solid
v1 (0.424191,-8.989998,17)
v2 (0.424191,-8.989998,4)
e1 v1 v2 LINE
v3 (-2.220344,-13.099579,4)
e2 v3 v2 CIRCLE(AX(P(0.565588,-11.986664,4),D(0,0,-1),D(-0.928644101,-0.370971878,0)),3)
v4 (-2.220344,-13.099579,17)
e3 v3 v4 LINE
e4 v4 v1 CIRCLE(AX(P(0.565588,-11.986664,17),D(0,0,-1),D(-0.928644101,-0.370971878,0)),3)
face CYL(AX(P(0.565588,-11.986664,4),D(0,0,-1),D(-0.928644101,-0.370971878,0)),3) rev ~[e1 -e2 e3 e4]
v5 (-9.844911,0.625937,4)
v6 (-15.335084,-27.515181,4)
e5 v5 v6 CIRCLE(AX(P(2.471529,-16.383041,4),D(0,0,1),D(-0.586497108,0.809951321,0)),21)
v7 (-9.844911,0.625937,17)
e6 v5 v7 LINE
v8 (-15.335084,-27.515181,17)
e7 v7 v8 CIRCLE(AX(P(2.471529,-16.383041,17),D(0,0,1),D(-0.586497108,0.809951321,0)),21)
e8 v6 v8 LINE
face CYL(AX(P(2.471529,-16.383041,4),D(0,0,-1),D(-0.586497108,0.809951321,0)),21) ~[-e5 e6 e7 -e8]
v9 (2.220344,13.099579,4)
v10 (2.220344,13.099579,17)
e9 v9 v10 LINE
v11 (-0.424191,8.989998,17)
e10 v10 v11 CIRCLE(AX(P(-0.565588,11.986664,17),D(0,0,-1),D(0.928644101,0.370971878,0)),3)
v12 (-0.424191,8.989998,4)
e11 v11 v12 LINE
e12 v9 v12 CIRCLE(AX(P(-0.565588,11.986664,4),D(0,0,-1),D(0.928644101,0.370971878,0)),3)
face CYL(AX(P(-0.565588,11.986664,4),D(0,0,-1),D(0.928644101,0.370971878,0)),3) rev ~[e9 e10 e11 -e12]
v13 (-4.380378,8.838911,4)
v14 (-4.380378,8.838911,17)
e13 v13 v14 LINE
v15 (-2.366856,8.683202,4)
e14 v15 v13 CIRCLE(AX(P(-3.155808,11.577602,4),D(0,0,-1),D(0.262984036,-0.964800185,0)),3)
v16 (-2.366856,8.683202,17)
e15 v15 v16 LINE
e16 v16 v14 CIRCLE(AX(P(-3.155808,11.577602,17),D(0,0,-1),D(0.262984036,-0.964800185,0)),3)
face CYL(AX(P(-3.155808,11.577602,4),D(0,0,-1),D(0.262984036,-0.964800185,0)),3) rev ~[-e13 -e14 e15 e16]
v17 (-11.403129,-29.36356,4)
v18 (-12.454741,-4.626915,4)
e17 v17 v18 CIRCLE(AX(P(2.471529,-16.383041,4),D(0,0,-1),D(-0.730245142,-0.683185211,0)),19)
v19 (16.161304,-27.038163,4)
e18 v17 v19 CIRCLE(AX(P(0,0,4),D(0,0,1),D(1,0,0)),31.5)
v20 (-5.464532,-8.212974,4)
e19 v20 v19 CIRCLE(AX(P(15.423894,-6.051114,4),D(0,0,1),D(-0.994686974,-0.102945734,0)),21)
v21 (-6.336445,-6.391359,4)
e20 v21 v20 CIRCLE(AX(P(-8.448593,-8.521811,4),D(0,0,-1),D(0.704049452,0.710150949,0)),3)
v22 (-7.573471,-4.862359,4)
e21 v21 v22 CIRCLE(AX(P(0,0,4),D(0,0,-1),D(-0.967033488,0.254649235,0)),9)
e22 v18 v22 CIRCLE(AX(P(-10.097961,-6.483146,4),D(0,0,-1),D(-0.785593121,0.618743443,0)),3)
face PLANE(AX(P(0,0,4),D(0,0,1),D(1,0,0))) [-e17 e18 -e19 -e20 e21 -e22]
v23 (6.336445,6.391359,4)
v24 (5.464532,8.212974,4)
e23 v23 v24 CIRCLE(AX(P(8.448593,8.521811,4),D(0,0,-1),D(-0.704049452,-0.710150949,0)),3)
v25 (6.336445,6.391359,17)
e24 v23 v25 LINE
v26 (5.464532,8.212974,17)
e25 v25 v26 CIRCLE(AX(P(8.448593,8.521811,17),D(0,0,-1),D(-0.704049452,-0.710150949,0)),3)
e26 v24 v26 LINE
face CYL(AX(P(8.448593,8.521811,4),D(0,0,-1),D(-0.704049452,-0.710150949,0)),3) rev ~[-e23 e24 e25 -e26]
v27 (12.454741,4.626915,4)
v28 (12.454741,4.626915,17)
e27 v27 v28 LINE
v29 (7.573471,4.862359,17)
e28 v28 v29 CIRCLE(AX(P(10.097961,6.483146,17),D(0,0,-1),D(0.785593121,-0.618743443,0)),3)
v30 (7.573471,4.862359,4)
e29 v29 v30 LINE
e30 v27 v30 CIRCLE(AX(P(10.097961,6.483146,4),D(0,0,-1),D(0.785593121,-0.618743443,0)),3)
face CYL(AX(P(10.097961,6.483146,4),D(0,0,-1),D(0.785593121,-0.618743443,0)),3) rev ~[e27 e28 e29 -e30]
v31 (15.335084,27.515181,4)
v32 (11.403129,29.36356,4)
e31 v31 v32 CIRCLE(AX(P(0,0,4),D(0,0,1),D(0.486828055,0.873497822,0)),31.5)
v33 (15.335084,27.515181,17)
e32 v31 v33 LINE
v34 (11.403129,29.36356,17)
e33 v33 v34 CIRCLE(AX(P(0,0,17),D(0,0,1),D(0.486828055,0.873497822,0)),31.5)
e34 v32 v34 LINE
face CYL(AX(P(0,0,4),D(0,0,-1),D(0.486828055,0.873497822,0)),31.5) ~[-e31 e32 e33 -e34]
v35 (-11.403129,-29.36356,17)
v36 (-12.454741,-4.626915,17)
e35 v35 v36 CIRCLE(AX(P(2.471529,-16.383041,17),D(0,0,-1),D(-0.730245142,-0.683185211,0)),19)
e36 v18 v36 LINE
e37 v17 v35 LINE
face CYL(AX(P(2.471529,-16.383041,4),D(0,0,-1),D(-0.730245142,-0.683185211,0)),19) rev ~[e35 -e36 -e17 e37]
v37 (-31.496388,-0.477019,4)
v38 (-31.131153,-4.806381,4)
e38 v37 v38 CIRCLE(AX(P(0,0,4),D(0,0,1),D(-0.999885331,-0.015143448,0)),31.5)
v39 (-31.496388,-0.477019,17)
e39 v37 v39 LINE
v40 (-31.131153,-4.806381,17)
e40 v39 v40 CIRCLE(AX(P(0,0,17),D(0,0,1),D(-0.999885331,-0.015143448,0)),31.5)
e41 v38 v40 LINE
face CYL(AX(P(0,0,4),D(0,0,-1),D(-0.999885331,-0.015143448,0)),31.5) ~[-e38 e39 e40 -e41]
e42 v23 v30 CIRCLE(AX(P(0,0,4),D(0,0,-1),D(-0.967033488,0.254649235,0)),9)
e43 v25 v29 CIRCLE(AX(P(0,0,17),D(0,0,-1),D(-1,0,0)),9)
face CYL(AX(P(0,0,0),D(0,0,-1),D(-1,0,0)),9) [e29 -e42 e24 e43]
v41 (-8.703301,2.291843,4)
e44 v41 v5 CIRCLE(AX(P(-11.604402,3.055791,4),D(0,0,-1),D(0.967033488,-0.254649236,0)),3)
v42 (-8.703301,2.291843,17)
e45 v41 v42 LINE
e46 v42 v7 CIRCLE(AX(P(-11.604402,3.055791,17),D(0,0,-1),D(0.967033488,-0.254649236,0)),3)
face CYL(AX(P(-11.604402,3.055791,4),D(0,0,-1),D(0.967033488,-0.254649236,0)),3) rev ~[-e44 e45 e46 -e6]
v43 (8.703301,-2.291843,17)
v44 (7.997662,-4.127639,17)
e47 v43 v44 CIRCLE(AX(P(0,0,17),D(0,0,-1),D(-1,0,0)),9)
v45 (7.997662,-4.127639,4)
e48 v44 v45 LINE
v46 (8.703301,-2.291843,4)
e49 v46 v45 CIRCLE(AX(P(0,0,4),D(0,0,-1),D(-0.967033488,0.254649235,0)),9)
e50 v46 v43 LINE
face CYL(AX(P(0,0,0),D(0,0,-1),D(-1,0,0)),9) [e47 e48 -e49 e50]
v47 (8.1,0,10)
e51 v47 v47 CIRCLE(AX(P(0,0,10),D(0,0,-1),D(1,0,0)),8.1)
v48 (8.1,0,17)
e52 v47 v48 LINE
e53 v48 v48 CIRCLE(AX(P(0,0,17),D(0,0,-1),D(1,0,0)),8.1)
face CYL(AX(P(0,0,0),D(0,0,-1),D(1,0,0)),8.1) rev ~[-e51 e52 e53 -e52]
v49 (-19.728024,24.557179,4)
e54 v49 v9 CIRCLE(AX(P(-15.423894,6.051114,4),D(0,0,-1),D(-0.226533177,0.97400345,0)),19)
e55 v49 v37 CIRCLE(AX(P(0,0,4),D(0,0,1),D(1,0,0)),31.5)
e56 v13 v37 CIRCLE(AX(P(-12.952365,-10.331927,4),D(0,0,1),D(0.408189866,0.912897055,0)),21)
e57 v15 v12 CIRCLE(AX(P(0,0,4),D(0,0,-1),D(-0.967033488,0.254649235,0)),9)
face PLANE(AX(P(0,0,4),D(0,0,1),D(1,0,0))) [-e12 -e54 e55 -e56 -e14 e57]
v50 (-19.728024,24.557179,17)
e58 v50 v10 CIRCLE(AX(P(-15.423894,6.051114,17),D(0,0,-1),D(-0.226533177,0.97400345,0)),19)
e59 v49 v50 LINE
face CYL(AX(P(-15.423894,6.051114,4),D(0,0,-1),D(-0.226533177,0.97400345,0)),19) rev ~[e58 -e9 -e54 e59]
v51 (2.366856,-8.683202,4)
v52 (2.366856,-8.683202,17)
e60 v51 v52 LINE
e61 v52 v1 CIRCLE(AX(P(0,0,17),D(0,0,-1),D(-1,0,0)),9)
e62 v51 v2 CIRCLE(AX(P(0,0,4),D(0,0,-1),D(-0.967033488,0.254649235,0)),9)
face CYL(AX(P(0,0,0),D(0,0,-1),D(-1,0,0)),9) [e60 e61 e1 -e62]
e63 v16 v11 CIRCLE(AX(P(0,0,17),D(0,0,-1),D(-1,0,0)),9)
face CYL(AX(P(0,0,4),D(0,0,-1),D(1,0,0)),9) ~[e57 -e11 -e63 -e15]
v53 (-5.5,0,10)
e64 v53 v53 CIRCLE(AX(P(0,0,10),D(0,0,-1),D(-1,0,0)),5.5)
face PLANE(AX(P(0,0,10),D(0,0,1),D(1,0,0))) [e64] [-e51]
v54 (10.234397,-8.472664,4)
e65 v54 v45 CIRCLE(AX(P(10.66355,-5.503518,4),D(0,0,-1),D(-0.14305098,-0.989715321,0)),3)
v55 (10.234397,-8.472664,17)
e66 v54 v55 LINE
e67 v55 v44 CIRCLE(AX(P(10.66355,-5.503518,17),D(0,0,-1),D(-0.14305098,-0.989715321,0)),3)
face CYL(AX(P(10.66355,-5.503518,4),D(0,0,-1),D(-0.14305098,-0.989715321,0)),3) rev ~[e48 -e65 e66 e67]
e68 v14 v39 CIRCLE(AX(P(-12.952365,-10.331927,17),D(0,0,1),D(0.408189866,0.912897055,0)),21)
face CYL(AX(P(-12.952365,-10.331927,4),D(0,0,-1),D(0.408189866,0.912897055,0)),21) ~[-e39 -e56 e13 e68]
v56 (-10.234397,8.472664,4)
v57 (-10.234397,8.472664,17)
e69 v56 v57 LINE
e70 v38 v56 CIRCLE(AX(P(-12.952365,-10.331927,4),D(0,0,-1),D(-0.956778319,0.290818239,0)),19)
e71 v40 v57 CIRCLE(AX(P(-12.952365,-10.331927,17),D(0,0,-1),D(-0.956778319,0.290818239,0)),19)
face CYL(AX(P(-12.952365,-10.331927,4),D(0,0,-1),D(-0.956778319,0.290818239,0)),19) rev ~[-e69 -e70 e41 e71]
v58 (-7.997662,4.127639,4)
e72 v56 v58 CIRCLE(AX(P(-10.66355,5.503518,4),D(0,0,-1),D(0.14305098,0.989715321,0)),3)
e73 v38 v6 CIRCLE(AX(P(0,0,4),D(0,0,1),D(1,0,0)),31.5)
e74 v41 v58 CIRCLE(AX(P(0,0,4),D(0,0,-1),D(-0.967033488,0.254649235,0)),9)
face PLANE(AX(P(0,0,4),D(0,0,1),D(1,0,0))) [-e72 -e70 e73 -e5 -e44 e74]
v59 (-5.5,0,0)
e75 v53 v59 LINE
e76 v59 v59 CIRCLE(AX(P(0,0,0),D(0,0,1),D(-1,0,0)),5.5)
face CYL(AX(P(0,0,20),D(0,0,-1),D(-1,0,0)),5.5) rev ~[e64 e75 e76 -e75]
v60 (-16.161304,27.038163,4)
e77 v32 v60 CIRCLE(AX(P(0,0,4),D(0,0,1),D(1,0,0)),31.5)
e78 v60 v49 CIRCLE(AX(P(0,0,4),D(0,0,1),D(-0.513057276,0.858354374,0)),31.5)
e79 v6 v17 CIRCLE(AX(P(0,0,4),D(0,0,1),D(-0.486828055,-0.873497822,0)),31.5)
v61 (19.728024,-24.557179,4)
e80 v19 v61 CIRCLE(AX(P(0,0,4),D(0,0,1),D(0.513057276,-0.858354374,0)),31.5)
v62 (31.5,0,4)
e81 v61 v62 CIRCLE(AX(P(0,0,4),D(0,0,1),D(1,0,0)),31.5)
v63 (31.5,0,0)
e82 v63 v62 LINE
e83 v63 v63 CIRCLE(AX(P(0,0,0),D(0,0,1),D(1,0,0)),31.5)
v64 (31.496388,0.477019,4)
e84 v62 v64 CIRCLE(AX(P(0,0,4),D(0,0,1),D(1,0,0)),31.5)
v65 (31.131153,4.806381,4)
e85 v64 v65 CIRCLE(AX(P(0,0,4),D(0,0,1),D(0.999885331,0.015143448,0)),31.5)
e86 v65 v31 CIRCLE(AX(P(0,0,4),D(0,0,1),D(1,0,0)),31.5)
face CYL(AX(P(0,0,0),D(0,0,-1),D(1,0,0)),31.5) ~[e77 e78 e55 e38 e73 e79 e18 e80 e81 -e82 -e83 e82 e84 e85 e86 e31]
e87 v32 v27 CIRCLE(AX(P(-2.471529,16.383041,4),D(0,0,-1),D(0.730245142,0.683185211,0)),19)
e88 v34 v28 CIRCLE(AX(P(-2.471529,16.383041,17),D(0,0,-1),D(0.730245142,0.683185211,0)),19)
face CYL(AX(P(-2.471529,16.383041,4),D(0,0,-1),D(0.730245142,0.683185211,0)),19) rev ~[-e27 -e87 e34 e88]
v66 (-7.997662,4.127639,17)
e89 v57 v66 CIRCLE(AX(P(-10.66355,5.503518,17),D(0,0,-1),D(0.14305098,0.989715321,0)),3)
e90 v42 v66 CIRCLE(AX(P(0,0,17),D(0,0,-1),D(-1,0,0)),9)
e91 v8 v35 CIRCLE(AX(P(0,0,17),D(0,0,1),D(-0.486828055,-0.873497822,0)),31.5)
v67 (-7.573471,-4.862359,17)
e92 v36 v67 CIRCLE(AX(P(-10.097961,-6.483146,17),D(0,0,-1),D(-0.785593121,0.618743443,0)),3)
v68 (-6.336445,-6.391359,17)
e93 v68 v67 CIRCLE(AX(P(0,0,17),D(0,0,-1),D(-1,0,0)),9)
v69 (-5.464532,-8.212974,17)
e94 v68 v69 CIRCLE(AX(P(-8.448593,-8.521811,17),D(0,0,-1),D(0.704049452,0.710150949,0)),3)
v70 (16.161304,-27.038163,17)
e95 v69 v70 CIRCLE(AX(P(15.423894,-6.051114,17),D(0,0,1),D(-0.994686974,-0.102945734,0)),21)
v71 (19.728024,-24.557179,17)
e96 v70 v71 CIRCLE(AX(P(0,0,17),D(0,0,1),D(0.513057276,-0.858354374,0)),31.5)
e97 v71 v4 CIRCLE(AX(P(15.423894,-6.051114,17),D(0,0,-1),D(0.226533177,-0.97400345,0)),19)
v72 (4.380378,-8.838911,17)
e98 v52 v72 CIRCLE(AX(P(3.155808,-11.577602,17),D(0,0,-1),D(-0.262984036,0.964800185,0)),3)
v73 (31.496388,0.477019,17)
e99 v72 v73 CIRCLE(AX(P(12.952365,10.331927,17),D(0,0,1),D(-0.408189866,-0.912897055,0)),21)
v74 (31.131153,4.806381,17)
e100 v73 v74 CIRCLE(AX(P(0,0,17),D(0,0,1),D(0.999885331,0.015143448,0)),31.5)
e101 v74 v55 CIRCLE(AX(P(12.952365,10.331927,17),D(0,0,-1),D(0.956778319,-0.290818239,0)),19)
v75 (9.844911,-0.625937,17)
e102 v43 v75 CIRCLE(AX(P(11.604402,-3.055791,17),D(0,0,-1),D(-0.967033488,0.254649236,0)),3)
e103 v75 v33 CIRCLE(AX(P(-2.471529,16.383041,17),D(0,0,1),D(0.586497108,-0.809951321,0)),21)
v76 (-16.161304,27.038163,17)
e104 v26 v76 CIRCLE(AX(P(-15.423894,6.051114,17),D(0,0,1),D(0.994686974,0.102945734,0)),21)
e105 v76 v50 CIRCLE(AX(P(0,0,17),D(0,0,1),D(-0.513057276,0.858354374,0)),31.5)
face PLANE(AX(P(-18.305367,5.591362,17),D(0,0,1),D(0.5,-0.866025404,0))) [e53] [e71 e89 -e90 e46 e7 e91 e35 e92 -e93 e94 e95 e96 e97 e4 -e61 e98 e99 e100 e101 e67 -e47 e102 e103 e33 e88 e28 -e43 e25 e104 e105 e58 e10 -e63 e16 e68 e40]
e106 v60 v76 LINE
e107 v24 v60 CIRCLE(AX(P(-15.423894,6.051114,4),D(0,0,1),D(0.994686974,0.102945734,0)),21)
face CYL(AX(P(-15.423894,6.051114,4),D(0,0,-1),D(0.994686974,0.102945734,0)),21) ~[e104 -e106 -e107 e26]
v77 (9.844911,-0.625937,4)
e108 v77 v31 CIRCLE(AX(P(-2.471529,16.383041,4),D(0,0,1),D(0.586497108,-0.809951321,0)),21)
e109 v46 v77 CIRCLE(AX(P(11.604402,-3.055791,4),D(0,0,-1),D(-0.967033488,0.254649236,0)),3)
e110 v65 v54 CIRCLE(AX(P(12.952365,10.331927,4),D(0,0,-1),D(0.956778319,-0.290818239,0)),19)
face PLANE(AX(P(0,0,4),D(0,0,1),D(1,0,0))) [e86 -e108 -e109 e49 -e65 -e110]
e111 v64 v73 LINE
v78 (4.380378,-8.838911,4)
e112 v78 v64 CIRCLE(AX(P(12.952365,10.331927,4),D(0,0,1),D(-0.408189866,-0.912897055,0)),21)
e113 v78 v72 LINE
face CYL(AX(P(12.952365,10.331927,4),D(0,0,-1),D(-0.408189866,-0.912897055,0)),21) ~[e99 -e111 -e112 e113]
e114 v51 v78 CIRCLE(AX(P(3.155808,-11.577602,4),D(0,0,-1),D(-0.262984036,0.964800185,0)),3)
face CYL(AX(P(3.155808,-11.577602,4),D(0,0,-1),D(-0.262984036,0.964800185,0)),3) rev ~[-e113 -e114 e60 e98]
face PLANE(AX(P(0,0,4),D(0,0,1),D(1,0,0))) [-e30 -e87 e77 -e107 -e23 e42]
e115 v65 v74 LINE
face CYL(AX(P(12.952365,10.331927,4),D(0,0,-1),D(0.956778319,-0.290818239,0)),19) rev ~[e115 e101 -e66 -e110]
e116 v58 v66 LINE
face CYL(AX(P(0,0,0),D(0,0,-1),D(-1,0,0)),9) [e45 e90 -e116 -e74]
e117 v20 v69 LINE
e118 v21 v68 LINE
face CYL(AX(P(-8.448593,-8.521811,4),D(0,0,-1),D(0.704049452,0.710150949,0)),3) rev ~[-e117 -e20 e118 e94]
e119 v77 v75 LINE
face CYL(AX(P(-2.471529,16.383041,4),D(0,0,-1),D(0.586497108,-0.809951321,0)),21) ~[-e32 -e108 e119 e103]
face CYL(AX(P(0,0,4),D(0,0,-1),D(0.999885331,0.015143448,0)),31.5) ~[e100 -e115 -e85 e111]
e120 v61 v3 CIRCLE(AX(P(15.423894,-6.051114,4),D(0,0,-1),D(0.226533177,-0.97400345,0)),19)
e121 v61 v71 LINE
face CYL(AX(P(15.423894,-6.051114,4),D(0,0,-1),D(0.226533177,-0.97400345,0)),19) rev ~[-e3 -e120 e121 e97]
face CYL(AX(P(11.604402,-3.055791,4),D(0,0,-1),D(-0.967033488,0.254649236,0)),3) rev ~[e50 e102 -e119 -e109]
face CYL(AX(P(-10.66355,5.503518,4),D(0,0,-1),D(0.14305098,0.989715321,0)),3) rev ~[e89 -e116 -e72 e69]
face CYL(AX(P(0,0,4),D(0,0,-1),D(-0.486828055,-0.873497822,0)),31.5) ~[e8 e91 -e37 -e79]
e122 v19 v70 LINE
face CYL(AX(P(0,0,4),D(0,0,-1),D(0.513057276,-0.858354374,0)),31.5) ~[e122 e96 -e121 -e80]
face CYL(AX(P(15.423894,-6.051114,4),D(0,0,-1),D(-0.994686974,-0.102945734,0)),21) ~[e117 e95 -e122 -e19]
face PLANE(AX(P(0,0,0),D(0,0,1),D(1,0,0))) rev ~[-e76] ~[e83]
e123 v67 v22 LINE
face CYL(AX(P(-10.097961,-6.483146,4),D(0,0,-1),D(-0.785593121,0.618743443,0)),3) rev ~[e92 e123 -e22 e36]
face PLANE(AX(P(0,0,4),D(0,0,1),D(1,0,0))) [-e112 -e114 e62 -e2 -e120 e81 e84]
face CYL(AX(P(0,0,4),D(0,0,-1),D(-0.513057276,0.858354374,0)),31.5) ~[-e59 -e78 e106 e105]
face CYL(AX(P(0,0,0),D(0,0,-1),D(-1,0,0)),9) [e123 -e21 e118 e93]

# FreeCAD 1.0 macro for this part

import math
import FreeCAD as App
import Part
import Sketcher

V = App.Vector
Q = App.Units.Quantity

doc = App.newDocument("Part")
body = doc.addObject("PartDesign::Body", "Body")

# Sketch on XY plane
sketch1 = body.newObject("Sketcher::SketchObject", "Sketch")
sketch1.AttachmentSupport = (doc.getObject("XY_Plane"), [""])
sketch1.MapMode = "FlatFace"
sketch1.addGeometry(Part.Circle(V(0, 0, 0), V(0, 0, 1), 32), False)
sketch1.addConstraint(Sketcher.Constraint("Coincident", 0, 3, -1, 1))
sketch1.addConstraint(Sketcher.Constraint("Diameter", 0, Q("63 mm")))
pad1 = body.newObject("PartDesign::Pad", "Pad")
pad1.Profile = sketch1
pad1.Length = 4

# Sketch on XY plane
sketch2 = body.newObject("Sketcher::SketchObject", "Sketch001")
sketch2.AttachmentSupport = (doc.getObject("XY_Plane"), [""])
sketch2.MapMode = "FlatFace"
sketch2.AttachmentOffset = App.Placement(V(0, 0, 4), App.Rotation())
sketch2.addGeometry(Part.Circle(V(0, 0, 0), V(0, 0, 1), 9), False)
sketch2.addConstraint(Sketcher.Constraint("Coincident", 0, 3, -1, 1))
sketch2.addConstraint(Sketcher.Constraint("Diameter", 0, Q("18 mm")))
pad2 = body.newObject("PartDesign::Pad", "Pad001")
pad2.Profile = sketch2
pad2.Length = 6

# Sketch on XY plane
sketch3 = body.newObject("Sketcher::SketchObject", "Sketch002")
sketch3.AttachmentSupport = (doc.getObject("XY_Plane"), [""])
sketch3.MapMode = "FlatFace"
sketch3.AttachmentOffset = App.Placement(V(0, 0, 10), App.Rotation())
sketch3.addGeometry(Part.Circle(V(0, 0, 0), V(0, 0, 1), 6), False)
sketch3.addConstraint(Sketcher.Constraint("Coincident", 0, 3, -1, 1))
sketch3.addConstraint(Sketcher.Constraint("Diameter", 0, Q("11 mm")))
doc.recompute()
hole = body.newObject("PartDesign::Hole", "Hole")
hole.Profile = sketch3
hole.ThreadType = "None"
hole.Diameter = 11
hole.DepthType = "Dimension"
hole.Depth = 10
hole.DrillPoint = "Angled"
hole.DrillPointAngle = 118

# Sketch on XY plane
sketch4 = body.newObject("Sketcher::SketchObject", "Sketch003")
sketch4.AttachmentSupport = (doc.getObject("XY_Plane"), [""])
sketch4.MapMode = "FlatFace"
sketch4.AttachmentOffset = App.Placement(V(0, 0, 4), App.Rotation())
sketch4.addGeometry(Part.ArcOfCircle(Part.Circle(V(2.5, -16.4, 0), V(0, 0, 1), 21), math.radians(126), math.radians(212)), False)
sketch4.addGeometry(Part.ArcOfCircle(Part.Circle(V(0, 0, 0), V(0, 0, 1), 31.5), math.radians(-119.13), math.radians(-111.22)), False)
sketch4.addGeometry(Part.ArcOfCircle(Part.Circle(V(2.5, -16.4, 0), V(0, 0, 1), 19), math.radians(142), math.radians(223)), False)
sketch4.addGeometry(Part.ArcOfCircle(Part.Circle(V(-10.1, -6.5, 0), V(0, 0, 1), 3), math.radians(33), math.radians(142)), False)
sketch4.addGeometry(Part.ArcOfCircle(Part.Circle(V(0, 0, 0), V(0, 0, 1), 9), math.radians(165), math.radians(213)), False)
sketch4.addGeometry(Part.ArcOfCircle(Part.Circle(V(-11.6, 3.1, 0), V(0, 0, 1), 3), math.radians(-54), math.radians(-15)), False)
sketch4.addConstraint(Sketcher.Constraint("Coincident", 0, 2, 1, 1))
sketch4.addConstraint(Sketcher.Constraint("Coincident", 1, 2, 2, 2))
sketch4.addConstraint(Sketcher.Constraint("Tangent", 2, 1, 3, 2))
sketch4.addConstraint(Sketcher.Constraint("Tangent", 3, 1, 4, 2))
sketch4.addConstraint(Sketcher.Constraint("Tangent", 4, 1, 5, 2))
sketch4.addConstraint(Sketcher.Constraint("Tangent", 5, 1, 0, 1))
sketch4.addConstraint(Sketcher.Constraint("Coincident", 1, 3, -1, 1))
sketch4.addConstraint(Sketcher.Constraint("Coincident", 4, 3, -1, 1))
sketch4.addConstraint(Sketcher.Constraint("Coincident", 2, 3, 0, 3))
sketch4.addConstraint(Sketcher.Constraint("Equal", 3, 5))
sketch4.addConstraint(Sketcher.Constraint("Radius", 0, Q("21 mm")))
sketch4.addConstraint(Sketcher.Constraint("Radius", 2, Q("19 mm")))
sketch4.addConstraint(Sketcher.Constraint("Radius", 3, Q("3 mm")))
sketch4.addConstraint(Sketcher.Constraint("Radius", 4, Q("9 mm")))
sketch4.addConstraint(Sketcher.Constraint("Radius", 1, Q("31.5 mm")))
sketch4.addConstraint(Sketcher.Constraint("DistanceX", 5, 3, -1, 1, Q("11.604402 mm")))
sketch4.addConstraint(Sketcher.Constraint("DistanceX", -1, 1, 0, 3, Q("2.471529 mm")))
pad3 = body.newObject("PartDesign::Pad", "Pad002")
pad3.Profile = sketch4
pad3.Length = 13
doc.recompute()

polarpattern = body.newObject("PartDesign::PolarPattern", "PolarPattern")
polarpattern.Originals = [pad3]
polarpattern.Axis = (doc.getObject("Z_Axis"), [""])
polarpattern.Angle = 360
polarpattern.Occurrences = 6
body.Tip = polarpattern

# Sketch on XY plane
sketch5 = body.newObject("Sketcher::SketchObject", "Sketch004")
sketch5.AttachmentSupport = (doc.getObject("XY_Plane"), [""])
sketch5.MapMode = "FlatFace"
sketch5.addGeometry(Part.Circle(V(0, 0, 0), V(0, 0, 1), 9), False)
sketch5.addGeometry(Part.Circle(V(0, 0, 0), V(0, 0, 1), 8), False)
sketch5.addConstraint(Sketcher.Constraint("Coincident", 0, 3, -1, 1))
sketch5.addConstraint(Sketcher.Constraint("Coincident", 1, 3, -1, 1))
sketch5.addConstraint(Sketcher.Constraint("Diameter", 0, Q("18 mm")))
sketch5.addConstraint(Sketcher.Constraint("Diameter", 1, Q("16.2 mm")))
pad4 = body.newObject("PartDesign::Pad", "Pad003")
pad4.Profile = sketch5
pad4.Length = 17

doc.recompute()
